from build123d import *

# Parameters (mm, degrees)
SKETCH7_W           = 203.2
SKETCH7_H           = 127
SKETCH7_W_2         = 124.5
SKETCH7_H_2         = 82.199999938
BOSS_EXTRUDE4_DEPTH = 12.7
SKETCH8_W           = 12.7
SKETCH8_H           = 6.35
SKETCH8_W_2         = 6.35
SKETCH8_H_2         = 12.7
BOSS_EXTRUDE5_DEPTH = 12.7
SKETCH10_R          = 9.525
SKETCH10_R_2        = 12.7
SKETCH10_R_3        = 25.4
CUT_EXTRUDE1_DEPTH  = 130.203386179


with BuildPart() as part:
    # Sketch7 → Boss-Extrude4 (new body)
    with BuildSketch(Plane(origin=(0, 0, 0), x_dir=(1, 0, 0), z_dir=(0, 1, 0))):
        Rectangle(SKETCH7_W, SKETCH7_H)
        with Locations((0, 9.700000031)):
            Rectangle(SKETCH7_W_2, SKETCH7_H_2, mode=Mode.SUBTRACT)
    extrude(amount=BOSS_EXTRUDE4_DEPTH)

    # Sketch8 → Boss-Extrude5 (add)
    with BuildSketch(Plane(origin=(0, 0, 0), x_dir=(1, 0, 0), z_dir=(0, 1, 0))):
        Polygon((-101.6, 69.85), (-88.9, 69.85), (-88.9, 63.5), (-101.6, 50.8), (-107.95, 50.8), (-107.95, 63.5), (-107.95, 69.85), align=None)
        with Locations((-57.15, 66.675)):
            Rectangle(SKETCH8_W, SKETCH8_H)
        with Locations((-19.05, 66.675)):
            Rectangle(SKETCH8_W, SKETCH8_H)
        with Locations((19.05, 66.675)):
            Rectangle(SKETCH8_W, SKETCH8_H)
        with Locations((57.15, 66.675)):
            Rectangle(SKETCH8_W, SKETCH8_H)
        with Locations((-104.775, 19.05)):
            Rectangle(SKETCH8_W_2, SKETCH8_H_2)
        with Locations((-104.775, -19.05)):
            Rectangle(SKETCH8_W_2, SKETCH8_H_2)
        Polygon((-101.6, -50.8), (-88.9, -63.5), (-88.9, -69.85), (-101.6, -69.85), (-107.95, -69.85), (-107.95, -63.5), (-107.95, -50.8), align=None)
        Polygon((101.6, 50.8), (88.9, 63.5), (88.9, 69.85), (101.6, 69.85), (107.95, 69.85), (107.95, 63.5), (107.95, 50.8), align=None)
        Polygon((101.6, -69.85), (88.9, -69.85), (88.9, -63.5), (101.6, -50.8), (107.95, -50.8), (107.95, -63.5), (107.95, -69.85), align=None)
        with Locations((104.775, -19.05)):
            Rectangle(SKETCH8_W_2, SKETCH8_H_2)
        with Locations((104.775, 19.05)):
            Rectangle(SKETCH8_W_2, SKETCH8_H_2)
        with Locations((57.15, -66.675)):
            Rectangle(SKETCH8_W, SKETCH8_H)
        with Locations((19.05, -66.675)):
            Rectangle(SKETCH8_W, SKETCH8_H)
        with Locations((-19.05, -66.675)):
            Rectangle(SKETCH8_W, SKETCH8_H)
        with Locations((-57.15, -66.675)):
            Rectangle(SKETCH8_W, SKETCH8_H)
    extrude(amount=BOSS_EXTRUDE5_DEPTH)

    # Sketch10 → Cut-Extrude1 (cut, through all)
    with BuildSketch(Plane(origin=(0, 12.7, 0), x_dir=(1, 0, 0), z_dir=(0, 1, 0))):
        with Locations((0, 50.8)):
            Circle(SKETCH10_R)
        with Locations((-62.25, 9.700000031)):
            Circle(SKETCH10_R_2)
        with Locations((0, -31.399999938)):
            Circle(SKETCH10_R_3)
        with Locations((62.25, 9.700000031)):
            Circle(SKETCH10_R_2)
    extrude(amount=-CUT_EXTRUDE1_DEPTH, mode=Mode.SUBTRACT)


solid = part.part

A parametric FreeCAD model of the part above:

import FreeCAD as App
import Part
import Sketcher
Q = App.Units.Quantity


def add_polygon(sketch, points):
    """Adds a closed chain of lines whose ends are joined by coincident constraints."""
    first, n = sketch.GeometryCount, len(points)
    for a, b in zip(points, points[1:] + points[:1]):
        sketch.addGeometry(Part.LineSegment(App.Vector(*a, 0), App.Vector(*b, 0)), False)
    for i in range(n):
        sketch.addConstraint(Sketcher.Constraint("Coincident", first + i, 2, first + (i + 1) % n, 1))

doc = App.newDocument("Part")
body = doc.addObject("PartDesign::Body", "Body")

# Sketch on XZ plane
sketch1 = doc.addObject("Sketcher::SketchObject", "Sketch")
body.addObject(sketch1)
sketch1.AttachmentSupport = (doc.XZ_Plane, [""])
sketch1.MapMode = "FlatFace"
add_polygon(sketch1, [(-102, -64), (-102, 64), (102, 64), (102, -64)])  # lines 0-3
add_polygon(sketch1, [(62, 31), (-62, 31), (-62, -51), (62, -51)])  # lines 4-7
sketch1.addConstraint([
    Sketcher.Constraint("Vertical", 0),
    Sketcher.Constraint("Horizontal", 1),
    Sketcher.Constraint("Vertical", 2),
    Sketcher.Constraint("Horizontal", 3),
    Sketcher.Constraint("Horizontal", 4),
    Sketcher.Constraint("Vertical", 5),
    Sketcher.Constraint("Horizontal", 6),
    Sketcher.Constraint("Vertical", 7),
    Sketcher.Constraint("Symmetric", 0, 2, 2, 2, -1, 1),
    Sketcher.Constraint("DistanceX", 1, 1, 1, 2, Q("8 in")),
    Sketcher.Constraint("DistanceY", 0, 1, 0, 2, Q("5 in")),
    Sketcher.Constraint("DistanceY", 5, 2, -1, 1, Q("2 in")),
    Sketcher.Constraint("DistanceX", 4, 2, 4, 1, 124.5),
    Sketcher.Constraint("DistanceY", 5, 2, 5, 1, 82.2),
    Sketcher.Constraint("DistanceX", 4, 2, -1, 1, 62.25),
])
pad1 = doc.addObject("PartDesign::Pad", "Pad")
body.addObject(pad1)
pad1.Profile = sketch1
pad1.Length = Q("0.5 in")
pad1.Reversed = True

# Sketch on XZ plane
sketch2 = doc.addObject("Sketcher::SketchObject", "Sketch001")
body.addObject(sketch2)
sketch2.AttachmentSupport = (doc.XZ_Plane, [""])
sketch2.MapMode = "FlatFace"
add_polygon(sketch2, [(-89, -70), (-108, -70), (-108, -51), (-102, -51), (-89, -64)])  # lines 0-4
add_polygon(sketch2, [(-64, -70), (-64, -64), (-51, -64), (-51, -70)])  # lines 5-8
add_polygon(sketch2, [(-25, -70), (-25, -64), (-13, -64), (-13, -70)])  # lines 9-12
add_polygon(sketch2, [(13, -70), (13, -64), (25, -64), (25, -70)])  # lines 13-16
add_polygon(sketch2, [(51, -70), (51, -64), (64, -64), (64, -70)])  # lines 17-20
add_polygon(sketch2, [(-108, -25), (-108, -13), (-102, -13), (-102, -25)])  # lines 21-24
add_polygon(sketch2, [(-108, 13), (-108, 25), (-102, 25), (-102, 13)])  # lines 25-28
add_polygon(sketch2, [(-89, 64), (-102, 51), (-108, 51), (-108, 70), (-89, 70)])  # lines 29-33
add_polygon(sketch2, [(89, -64), (102, -51), (108, -51), (108, -70), (89, -70)])  # lines 34-38
add_polygon(sketch2, [(89, 70), (108, 70), (108, 51), (102, 51), (89, 64)])  # lines 39-43
add_polygon(sketch2, [(102, 13), (102, 25), (108, 25), (108, 13)])  # lines 44-47
add_polygon(sketch2, [(102, -25), (102, -13), (108, -13), (108, -25)])  # lines 48-51
add_polygon(sketch2, [(51, 64), (51, 70), (64, 70), (64, 64)])  # lines 52-55
add_polygon(sketch2, [(13, 64), (13, 70), (25, 70), (25, 64)])  # lines 56-59
add_polygon(sketch2, [(-25, 64), (-25, 70), (-13, 70), (-13, 64)])  # lines 60-63
add_polygon(sketch2, [(-64, 64), (-64, 70), (-51, 70), (-51, 64)])  # lines 64-67
sketch2.addConstraint([
    Sketcher.Constraint("Horizontal", 0),
    Sketcher.Constraint("Vertical", 1),
    Sketcher.Constraint("Horizontal", 2),
    Sketcher.Constraint("Vertical", 4),
    Sketcher.Constraint("Vertical", 5),
    Sketcher.Constraint("Horizontal", 6),
    Sketcher.Constraint("Vertical", 7),
    Sketcher.Constraint("Horizontal", 8),
    Sketcher.Constraint("Vertical", 9),
    Sketcher.Constraint("Horizontal", 10),
    Sketcher.Constraint("Vertical", 11),
    Sketcher.Constraint("Horizontal", 12),
    Sketcher.Constraint("Vertical", 13),
    Sketcher.Constraint("Horizontal", 14),
    Sketcher.Constraint("Vertical", 15),
    Sketcher.Constraint("Horizontal", 16),
    Sketcher.Constraint("Vertical", 17),
    Sketcher.Constraint("Horizontal", 18),
    Sketcher.Constraint("Vertical", 19),
    Sketcher.Constraint("Horizontal", 20),
    Sketcher.Constraint("Vertical", 21),
    Sketcher.Constraint("Horizontal", 22),
    Sketcher.Constraint("Vertical", 23),
    Sketcher.Constraint("Horizontal", 24),
    Sketcher.Constraint("Vertical", 25),
    Sketcher.Constraint("Horizontal", 26),
    Sketcher.Constraint("Vertical", 27),
    Sketcher.Constraint("Horizontal", 28),
    Sketcher.Constraint("Horizontal", 30),
    Sketcher.Constraint("Vertical", 31),
    Sketcher.Constraint("Horizontal", 32),
    Sketcher.Constraint("Vertical", 33),
    Sketcher.Constraint("Horizontal", 35),
    Sketcher.Constraint("Vertical", 36),
    Sketcher.Constraint("Horizontal", 37),
    Sketcher.Constraint("Vertical", 38),
    Sketcher.Constraint("Horizontal", 39),
    Sketcher.Constraint("Vertical", 40),
    Sketcher.Constraint("Horizontal", 41),
    Sketcher.Constraint("Vertical", 43),
    Sketcher.Constraint("Vertical", 44),
    Sketcher.Constraint("Horizontal", 45),
    Sketcher.Constraint("Vertical", 46),
    Sketcher.Constraint("Horizontal", 47),
    Sketcher.Constraint("Vertical", 48),
    Sketcher.Constraint("Horizontal", 49),
    Sketcher.Constraint("Vertical", 50),
    Sketcher.Constraint("Horizontal", 51),
    Sketcher.Constraint("Vertical", 52),
    Sketcher.Constraint("Horizontal", 53),
    Sketcher.Constraint("Vertical", 54),
    Sketcher.Constraint("Horizontal", 55),
    Sketcher.Constraint("Vertical", 56),
    Sketcher.Constraint("Horizontal", 57),
    Sketcher.Constraint("Vertical", 58),
    Sketcher.Constraint("Horizontal", 59),
    Sketcher.Constraint("Vertical", 60),
    Sketcher.Constraint("Horizontal", 61),
    Sketcher.Constraint("Vertical", 62),
    Sketcher.Constraint("Horizontal", 63),
    Sketcher.Constraint("Vertical", 64),
    Sketcher.Constraint("Horizontal", 65),
    Sketcher.Constraint("Vertical", 66),
    Sketcher.Constraint("Horizontal", 67),
    Sketcher.Constraint("Symmetric", 29, 2, 34, 2, -1, 1),
    Sketcher.Constraint("Symmetric", 31, 2, 36, 2, -1, 1),
    Sketcher.Constraint("Symmetric", 33, 2, 38, 2, -1, 1),
    Sketcher.Constraint("Symmetric", 0, 2, 39, 2, -1, 1),
    Sketcher.Constraint("Symmetric", 2, 2, 41, 2, -1, 1),
    Sketcher.Constraint("Symmetric", 3, 2, 42, 2, -1, 1),
    Sketcher.Constraint("Symmetric", 23, 2, 44, 2, -1, 1),
    Sketcher.Constraint("Symmetric", 21, 2, 46, 2, -1, 1),
    Sketcher.Constraint("Symmetric", 27, 2, 48, 2, -1, 1),
    Sketcher.Constraint("Symmetric", 25, 2, 50, 2, -1, 1),
    Sketcher.Constraint("Symmetric", 7, 2, 52, 2, -1, 1),
    Sketcher.Constraint("Symmetric", 5, 2, 54, 2, -1, 1),
    Sketcher.Constraint("Symmetric", 11, 2, 56, 2, -1, 1),
    Sketcher.Constraint("Symmetric", 9, 2, 58, 2, -1, 1),
    Sketcher.Constraint("Symmetric", 15, 2, 60, 2, -1, 1),
    Sketcher.Constraint("Symmetric", 13, 2, 62, 2, -1, 1),
    Sketcher.Constraint("Symmetric", 19, 2, 64, 2, -1, 1),
    Sketcher.Constraint("Symmetric", 17, 2, 66, 2, -1, 1),
    Sketcher.Constraint("Symmetric", 10, 2, 13, 2, -2),
    Sketcher.Constraint("Symmetric", 12, 2, 15, 2, -2),
    Sketcher.Constraint("Symmetric", 6, 2, 17, 2, -2),
    Sketcher.Constraint("Symmetric", 8, 2, 19, 2, -2),
    Sketcher.Constraint("Symmetric", 2, 2, 34, 2, -2),
    Sketcher.Constraint("Symmetric", 0, 2, 36, 2, -2),
    Sketcher.Constraint("Symmetric", 3, 2, 38, 2, -2),
    Sketcher.Constraint("Symmetric", 26, 2, 44, 2, -2),
    Sketcher.Constraint("Symmetric", 28, 2, 46, 2, -2),
    Sketcher.Constraint("Perpendicular", 3, 29),
    Sketcher.Constraint("Horizontal", 3, 2, 5, 2),
    Sketcher.Constraint("Horizontal", 4, 2, 7, 2),
    Sketcher.Constraint("Horizontal", 6, 2, 9, 2),
    Sketcher.Constraint("Horizontal", 8, 2, 11, 2),
    Sketcher.Constraint("Vertical", 1, 2, 21, 2),
    Sketcher.Constraint("Vertical", 2, 2, 22, 2),
    Sketcher.Constraint("Equal", 8, 10),
    Sketcher.Constraint("Equal", 39, 1),
    Sketcher.Constraint("Equal", 67, 21),
    Sketcher.Constraint("DistanceX", 6, 1, 6, 2, Q("0.5 in")),
    Sketcher.Constraint("DistanceY", 1, 2, -1, 1, Q("2 in")),
    Sketcher.Constraint("DistanceX", 2, 2, -1, 1, Q("4 in")),
    Sketcher.Constraint("DistanceX", 6, 2, -1, 1, Q("2 in")),
    Sketcher.Constraint("DistanceX", 9, 2, -1, 1, Q("1 in")),
    Sketcher.Constraint("DistanceY", 23, 2, -1, 1, Q("1 in")),
    Sketcher.Constraint("DistanceX", 0, 2, 0, 1, Q("0.75 in")),
    Sketcher.Constraint("DistanceX", 2, 1, 2, 2, Q("0.25 in")),
])
pad2 = doc.addObject("PartDesign::Pad", "Pad001")
body.addObject(pad2)
pad2.Profile = sketch2
pad2.Length = Q("0.5 in")
pad2.Reversed = True

# Sketch on XZ plane
sketch3 = doc.addObject("Sketcher::SketchObject", "Sketch002")
body.addObject(sketch3)
sketch3.AttachmentSupport = (doc.XZ_Plane, [""])
sketch3.MapMode = "FlatFace"
sketch3.AttachmentOffset = App.Placement(App.Vector(0, 0, -0.5 * 25.4), App.Rotation())
sketch3.addGeometry([
    Part.Circle(App.Vector(0, -51, 0), App.Vector(0, 0, 1), 10),
    Part.Circle(App.Vector(-62, -10, 0), App.Vector(0, 0, 1), 13),
    Part.Circle(App.Vector(0, 31, 0), App.Vector(0, 0, 1), 25),
    Part.Circle(App.Vector(62, -10, 0), App.Vector(0, 0, 1), 13),
], False)
sketch3.addConstraint([
    Sketcher.Constraint("Equal", 1, 3),
    Sketcher.Constraint("Symmetric", 1, 3, 3, 3, -2),
    Sketcher.Constraint("PointOnObject", 0, 3, -2),
    Sketcher.Constraint("PointOnObject", 2, 3, -2),
    Sketcher.Constraint("Diameter", 1, Q("1 in")),
    Sketcher.Constraint("Diameter", 2, Q("2 in")),
    Sketcher.Constraint("Diameter", 0, Q("0.75 in")),
    Sketcher.Constraint("DistanceY", 0, 3, -1, 1, Q("2 in")),
    Sketcher.Constraint("DistanceX", 1, 3, -1, 1, 62.25),
    Sketcher.Constraint("DistanceY", 1, 3, -1, 1, 9.7),
    Sketcher.Constraint("DistanceY", -1, 1, 2, 3, 31.4),
])
pocket1 = doc.addObject("PartDesign::Pocket", "Pocket")
body.addObject(pocket1)
pocket1.Profile = sketch3
pocket1.Type = "ThroughAll"
pocket1.Reversed = True

doc.recompute()
